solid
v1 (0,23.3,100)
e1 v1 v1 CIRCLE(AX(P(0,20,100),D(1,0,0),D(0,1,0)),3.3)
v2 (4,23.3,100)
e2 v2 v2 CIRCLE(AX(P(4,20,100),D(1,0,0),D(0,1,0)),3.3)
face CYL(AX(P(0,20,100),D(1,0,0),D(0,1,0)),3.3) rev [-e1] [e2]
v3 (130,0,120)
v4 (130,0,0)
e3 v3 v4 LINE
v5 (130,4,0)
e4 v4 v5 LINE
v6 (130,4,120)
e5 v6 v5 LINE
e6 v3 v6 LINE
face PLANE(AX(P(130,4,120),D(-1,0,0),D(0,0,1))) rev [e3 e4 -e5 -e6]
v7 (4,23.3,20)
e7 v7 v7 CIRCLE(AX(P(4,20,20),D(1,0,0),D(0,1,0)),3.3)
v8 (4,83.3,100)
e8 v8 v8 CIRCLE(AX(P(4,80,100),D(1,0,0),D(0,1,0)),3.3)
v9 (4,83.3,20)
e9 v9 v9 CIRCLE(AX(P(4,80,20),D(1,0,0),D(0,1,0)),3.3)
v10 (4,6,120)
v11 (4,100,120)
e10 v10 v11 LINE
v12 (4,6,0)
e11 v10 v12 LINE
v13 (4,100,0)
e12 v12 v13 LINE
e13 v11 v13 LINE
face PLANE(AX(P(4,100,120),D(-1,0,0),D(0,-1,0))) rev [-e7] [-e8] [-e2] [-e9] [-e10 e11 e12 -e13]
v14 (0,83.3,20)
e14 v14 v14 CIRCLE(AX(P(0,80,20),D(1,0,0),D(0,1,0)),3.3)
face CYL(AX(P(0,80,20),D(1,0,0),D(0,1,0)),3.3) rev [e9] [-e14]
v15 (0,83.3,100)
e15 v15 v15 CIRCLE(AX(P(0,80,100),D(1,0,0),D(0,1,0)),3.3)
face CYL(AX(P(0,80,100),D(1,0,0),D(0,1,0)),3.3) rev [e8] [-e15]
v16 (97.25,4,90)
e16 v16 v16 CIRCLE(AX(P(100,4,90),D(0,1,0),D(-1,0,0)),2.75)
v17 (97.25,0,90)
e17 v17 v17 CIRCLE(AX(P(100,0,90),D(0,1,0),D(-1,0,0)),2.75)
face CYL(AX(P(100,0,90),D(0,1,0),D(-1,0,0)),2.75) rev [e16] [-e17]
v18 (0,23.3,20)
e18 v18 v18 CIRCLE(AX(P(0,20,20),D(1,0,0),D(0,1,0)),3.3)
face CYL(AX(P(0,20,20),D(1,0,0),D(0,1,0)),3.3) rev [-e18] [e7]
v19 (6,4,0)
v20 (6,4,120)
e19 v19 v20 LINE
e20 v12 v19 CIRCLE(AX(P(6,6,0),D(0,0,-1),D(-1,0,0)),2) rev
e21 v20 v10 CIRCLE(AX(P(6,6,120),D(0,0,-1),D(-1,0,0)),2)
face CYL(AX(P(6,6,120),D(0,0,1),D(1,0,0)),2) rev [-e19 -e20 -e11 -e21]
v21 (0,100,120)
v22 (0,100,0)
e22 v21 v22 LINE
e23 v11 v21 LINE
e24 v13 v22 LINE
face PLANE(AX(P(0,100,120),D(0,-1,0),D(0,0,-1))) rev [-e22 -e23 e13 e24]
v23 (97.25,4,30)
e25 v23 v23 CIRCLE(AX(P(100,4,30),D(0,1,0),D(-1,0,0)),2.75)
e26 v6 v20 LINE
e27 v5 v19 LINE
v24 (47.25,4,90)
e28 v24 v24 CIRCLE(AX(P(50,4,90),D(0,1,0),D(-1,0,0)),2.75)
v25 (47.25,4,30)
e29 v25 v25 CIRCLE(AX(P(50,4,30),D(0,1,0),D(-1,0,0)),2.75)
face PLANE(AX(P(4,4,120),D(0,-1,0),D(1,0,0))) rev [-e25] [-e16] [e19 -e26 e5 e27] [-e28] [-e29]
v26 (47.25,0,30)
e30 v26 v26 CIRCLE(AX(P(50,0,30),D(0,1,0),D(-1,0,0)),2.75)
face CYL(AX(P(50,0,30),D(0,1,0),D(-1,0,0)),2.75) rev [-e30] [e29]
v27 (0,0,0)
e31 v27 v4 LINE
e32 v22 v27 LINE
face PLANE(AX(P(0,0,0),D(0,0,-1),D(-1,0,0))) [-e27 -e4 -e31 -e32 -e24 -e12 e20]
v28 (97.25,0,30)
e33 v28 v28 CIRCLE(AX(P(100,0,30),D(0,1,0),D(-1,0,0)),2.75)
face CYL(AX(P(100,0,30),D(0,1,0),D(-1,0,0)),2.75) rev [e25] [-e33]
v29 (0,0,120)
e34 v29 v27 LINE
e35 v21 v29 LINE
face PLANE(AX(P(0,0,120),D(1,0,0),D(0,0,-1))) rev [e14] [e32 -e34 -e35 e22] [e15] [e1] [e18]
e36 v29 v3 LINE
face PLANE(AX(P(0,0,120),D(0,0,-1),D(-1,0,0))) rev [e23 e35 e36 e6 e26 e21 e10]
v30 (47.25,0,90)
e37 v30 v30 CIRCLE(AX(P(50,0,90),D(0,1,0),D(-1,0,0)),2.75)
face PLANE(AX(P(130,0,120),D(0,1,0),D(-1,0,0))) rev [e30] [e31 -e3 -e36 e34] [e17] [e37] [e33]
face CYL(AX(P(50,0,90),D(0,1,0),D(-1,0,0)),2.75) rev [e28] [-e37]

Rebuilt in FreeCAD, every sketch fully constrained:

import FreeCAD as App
import Part
import Sketcher

V = App.Vector


def edges_at(feature, points):
    """Names of the edges that pass closest to the given points."""
    edges = feature.Shape.Edges
    near = lambda p: min(range(len(edges)), key=lambda i: edges[i].distToShape(Part.Vertex(*p))[0])
    return sorted({f"Edge{near(p) + 1}" for p in points})

doc = App.newDocument("Part")
body = doc.addObject("PartDesign::Body", "Body")

# Sketch on XY plane
sketch1 = body.newObject("Sketcher::SketchObject", "Sketch")
sketch1.AttachmentSupport = (doc.getObject("XY_Plane"), [""])
sketch1.MapMode = "FlatFace"
sketch1.addGeometry(Part.LineSegment(V(0, 100, 0), V(0, 0, 0)), False)
sketch1.addGeometry(Part.LineSegment(V(0, 0, 0), V(130, 0, 0)), False)
sketch1.addGeometry(Part.LineSegment(V(130, 0, 0), V(130, 4, 0)), False)
sketch1.addGeometry(Part.LineSegment(V(130, 4, 0), V(4, 4, 0)), False)
sketch1.addGeometry(Part.LineSegment(V(4, 4, 0), V(4, 100, 0)), False)
sketch1.addGeometry(Part.LineSegment(V(4, 100, 0), V(0, 100, 0)), False)
sketch1.addConstraint(Sketcher.Constraint("Coincident", 0, 2, 1, 1))
sketch1.addConstraint(Sketcher.Constraint("Coincident", 1, 2, 2, 1))
sketch1.addConstraint(Sketcher.Constraint("Coincident", 2, 2, 3, 1))
sketch1.addConstraint(Sketcher.Constraint("Coincident", 3, 2, 4, 1))
sketch1.addConstraint(Sketcher.Constraint("Coincident", 4, 2, 5, 1))
sketch1.addConstraint(Sketcher.Constraint("Coincident", 5, 2, 0, 1))
sketch1.addConstraint(Sketcher.Constraint("Vertical", 0))
sketch1.addConstraint(Sketcher.Constraint("Horizontal", 1))
sketch1.addConstraint(Sketcher.Constraint("Vertical", 2))
sketch1.addConstraint(Sketcher.Constraint("Horizontal", 3))
sketch1.addConstraint(Sketcher.Constraint("Vertical", 4))
sketch1.addConstraint(Sketcher.Constraint("Horizontal", 5))
sketch1.addConstraint(Sketcher.Constraint("Coincident", 0, 2, -1, 1))
sketch1.addConstraint(Sketcher.Constraint("Equal", 5, 2))
sketch1.addConstraint(Sketcher.Constraint("DistanceX", 1, 1, 1, 2, 130.0))
sketch1.addConstraint(Sketcher.Constraint("DistanceX", 3, 2, 3, 1, 126.0))
sketch1.addConstraint(Sketcher.Constraint("DistanceY", 0, 2, 0, 1, 100.0))
pad1 = body.newObject("PartDesign::Pad", "Pad")
pad1.Profile = sketch1
pad1.Length = 120

# Sketch on YZ plane
sketch2 = body.newObject("Sketcher::SketchObject", "Sketch001")
sketch2.AttachmentSupport = (doc.getObject("YZ_Plane"), [""])
sketch2.MapMode = "FlatFace"
sketch2.AttachmentOffset = App.Placement(V(0, 0, 4), App.Rotation())
sketch2.addGeometry(Part.Circle(V(80, 100, 0), V(0, 0, 1), 3.3), False)
sketch2.addGeometry(Part.Circle(V(80, 20, 0), V(0, 0, 1), 3.3), False)
sketch2.addGeometry(Part.Circle(V(20, 20, 0), V(0, 0, 1), 3.3), False)
sketch2.addGeometry(Part.Circle(V(20, 100, 0), V(0, 0, 1), 3.3), False)
sketch2.addConstraint(Sketcher.Constraint("Equal", 0, 1))
sketch2.addConstraint(Sketcher.Constraint("Equal", 1, 2))
sketch2.addConstraint(Sketcher.Constraint("Equal", 2, 3))
sketch2.addConstraint(Sketcher.Constraint("Horizontal", 1, 3, 2, 3))
sketch2.addConstraint(Sketcher.Constraint("Horizontal", 0, 3, 3, 3))
sketch2.addConstraint(Sketcher.Constraint("Vertical", 0, 3, 1, 3))
sketch2.addConstraint(Sketcher.Constraint("Vertical", 2, 3, 3, 3))
sketch2.addConstraint(Sketcher.Constraint("Diameter", 0, 6.6))
sketch2.addConstraint(Sketcher.Constraint("DistanceX", -1, 1, 0, 3, 80.0))
sketch2.addConstraint(Sketcher.Constraint("DistanceY", -1, 1, 0, 3, 100.0))
sketch2.addConstraint(Sketcher.Constraint("DistanceY", -1, 1, 1, 3, 20.0))
sketch2.addConstraint(Sketcher.Constraint("DistanceX", -1, 1, 2, 3, 20.0))
pocket1 = body.newObject("PartDesign::Pocket", "Pocket")
pocket1.Profile = sketch2
pocket1.Type = "ThroughAll"

# Sketch on XZ plane
sketch3 = body.newObject("Sketcher::SketchObject", "Sketch002")
sketch3.AttachmentSupport = (doc.getObject("XZ_Plane"), [""])
sketch3.MapMode = "FlatFace"
sketch3.AttachmentOffset = App.Placement(V(0, 0, -4), App.Rotation())
sketch3.addGeometry(Part.Circle(V(100, 30, 0), V(0, 0, 1), 2.8), False)
sketch3.addGeometry(Part.Circle(V(50, 30, 0), V(0, 0, 1), 2.8), False)
sketch3.addGeometry(Part.Circle(V(50, 90, 0), V(0, 0, 1), 2.8), False)
sketch3.addGeometry(Part.Circle(V(100, 90, 0), V(0, 0, 1), 2.8), False)
sketch3.addConstraint(Sketcher.Constraint("Equal", 0, 1))
sketch3.addConstraint(Sketcher.Constraint("Equal", 1, 2))
sketch3.addConstraint(Sketcher.Constraint("Equal", 2, 3))
sketch3.addConstraint(Sketcher.Constraint("Horizontal", 0, 3, 1, 3))
sketch3.addConstraint(Sketcher.Constraint("Horizontal", 2, 3, 3, 3))
sketch3.addConstraint(Sketcher.Constraint("Vertical", 1, 3, 2, 3))
sketch3.addConstraint(Sketcher.Constraint("Vertical", 0, 3, 3, 3))
sketch3.addConstraint(Sketcher.Constraint("Diameter", 0, 5.5))
sketch3.addConstraint(Sketcher.Constraint("DistanceX", -1, 1, 0, 3, 100.0))
sketch3.addConstraint(Sketcher.Constraint("DistanceY", -1, 1, 0, 3, 30.0))
sketch3.addConstraint(Sketcher.Constraint("DistanceX", -1, 1, 1, 3, 50.0))
sketch3.addConstraint(Sketcher.Constraint("DistanceY", -1, 1, 2, 3, 90.0))
pocket2 = body.newObject("PartDesign::Pocket", "Pocket001")
pocket2.Profile = sketch3
pocket2.Type = "ThroughAll"
pocket2.Reversed = True
doc.recompute()

fillet = body.newObject("PartDesign::Fillet", "Fillet")
fillet.Base = (pocket2, edges_at(pocket2, [(4, 4, 60)]))
fillet.Radius = 2

doc.recompute()
